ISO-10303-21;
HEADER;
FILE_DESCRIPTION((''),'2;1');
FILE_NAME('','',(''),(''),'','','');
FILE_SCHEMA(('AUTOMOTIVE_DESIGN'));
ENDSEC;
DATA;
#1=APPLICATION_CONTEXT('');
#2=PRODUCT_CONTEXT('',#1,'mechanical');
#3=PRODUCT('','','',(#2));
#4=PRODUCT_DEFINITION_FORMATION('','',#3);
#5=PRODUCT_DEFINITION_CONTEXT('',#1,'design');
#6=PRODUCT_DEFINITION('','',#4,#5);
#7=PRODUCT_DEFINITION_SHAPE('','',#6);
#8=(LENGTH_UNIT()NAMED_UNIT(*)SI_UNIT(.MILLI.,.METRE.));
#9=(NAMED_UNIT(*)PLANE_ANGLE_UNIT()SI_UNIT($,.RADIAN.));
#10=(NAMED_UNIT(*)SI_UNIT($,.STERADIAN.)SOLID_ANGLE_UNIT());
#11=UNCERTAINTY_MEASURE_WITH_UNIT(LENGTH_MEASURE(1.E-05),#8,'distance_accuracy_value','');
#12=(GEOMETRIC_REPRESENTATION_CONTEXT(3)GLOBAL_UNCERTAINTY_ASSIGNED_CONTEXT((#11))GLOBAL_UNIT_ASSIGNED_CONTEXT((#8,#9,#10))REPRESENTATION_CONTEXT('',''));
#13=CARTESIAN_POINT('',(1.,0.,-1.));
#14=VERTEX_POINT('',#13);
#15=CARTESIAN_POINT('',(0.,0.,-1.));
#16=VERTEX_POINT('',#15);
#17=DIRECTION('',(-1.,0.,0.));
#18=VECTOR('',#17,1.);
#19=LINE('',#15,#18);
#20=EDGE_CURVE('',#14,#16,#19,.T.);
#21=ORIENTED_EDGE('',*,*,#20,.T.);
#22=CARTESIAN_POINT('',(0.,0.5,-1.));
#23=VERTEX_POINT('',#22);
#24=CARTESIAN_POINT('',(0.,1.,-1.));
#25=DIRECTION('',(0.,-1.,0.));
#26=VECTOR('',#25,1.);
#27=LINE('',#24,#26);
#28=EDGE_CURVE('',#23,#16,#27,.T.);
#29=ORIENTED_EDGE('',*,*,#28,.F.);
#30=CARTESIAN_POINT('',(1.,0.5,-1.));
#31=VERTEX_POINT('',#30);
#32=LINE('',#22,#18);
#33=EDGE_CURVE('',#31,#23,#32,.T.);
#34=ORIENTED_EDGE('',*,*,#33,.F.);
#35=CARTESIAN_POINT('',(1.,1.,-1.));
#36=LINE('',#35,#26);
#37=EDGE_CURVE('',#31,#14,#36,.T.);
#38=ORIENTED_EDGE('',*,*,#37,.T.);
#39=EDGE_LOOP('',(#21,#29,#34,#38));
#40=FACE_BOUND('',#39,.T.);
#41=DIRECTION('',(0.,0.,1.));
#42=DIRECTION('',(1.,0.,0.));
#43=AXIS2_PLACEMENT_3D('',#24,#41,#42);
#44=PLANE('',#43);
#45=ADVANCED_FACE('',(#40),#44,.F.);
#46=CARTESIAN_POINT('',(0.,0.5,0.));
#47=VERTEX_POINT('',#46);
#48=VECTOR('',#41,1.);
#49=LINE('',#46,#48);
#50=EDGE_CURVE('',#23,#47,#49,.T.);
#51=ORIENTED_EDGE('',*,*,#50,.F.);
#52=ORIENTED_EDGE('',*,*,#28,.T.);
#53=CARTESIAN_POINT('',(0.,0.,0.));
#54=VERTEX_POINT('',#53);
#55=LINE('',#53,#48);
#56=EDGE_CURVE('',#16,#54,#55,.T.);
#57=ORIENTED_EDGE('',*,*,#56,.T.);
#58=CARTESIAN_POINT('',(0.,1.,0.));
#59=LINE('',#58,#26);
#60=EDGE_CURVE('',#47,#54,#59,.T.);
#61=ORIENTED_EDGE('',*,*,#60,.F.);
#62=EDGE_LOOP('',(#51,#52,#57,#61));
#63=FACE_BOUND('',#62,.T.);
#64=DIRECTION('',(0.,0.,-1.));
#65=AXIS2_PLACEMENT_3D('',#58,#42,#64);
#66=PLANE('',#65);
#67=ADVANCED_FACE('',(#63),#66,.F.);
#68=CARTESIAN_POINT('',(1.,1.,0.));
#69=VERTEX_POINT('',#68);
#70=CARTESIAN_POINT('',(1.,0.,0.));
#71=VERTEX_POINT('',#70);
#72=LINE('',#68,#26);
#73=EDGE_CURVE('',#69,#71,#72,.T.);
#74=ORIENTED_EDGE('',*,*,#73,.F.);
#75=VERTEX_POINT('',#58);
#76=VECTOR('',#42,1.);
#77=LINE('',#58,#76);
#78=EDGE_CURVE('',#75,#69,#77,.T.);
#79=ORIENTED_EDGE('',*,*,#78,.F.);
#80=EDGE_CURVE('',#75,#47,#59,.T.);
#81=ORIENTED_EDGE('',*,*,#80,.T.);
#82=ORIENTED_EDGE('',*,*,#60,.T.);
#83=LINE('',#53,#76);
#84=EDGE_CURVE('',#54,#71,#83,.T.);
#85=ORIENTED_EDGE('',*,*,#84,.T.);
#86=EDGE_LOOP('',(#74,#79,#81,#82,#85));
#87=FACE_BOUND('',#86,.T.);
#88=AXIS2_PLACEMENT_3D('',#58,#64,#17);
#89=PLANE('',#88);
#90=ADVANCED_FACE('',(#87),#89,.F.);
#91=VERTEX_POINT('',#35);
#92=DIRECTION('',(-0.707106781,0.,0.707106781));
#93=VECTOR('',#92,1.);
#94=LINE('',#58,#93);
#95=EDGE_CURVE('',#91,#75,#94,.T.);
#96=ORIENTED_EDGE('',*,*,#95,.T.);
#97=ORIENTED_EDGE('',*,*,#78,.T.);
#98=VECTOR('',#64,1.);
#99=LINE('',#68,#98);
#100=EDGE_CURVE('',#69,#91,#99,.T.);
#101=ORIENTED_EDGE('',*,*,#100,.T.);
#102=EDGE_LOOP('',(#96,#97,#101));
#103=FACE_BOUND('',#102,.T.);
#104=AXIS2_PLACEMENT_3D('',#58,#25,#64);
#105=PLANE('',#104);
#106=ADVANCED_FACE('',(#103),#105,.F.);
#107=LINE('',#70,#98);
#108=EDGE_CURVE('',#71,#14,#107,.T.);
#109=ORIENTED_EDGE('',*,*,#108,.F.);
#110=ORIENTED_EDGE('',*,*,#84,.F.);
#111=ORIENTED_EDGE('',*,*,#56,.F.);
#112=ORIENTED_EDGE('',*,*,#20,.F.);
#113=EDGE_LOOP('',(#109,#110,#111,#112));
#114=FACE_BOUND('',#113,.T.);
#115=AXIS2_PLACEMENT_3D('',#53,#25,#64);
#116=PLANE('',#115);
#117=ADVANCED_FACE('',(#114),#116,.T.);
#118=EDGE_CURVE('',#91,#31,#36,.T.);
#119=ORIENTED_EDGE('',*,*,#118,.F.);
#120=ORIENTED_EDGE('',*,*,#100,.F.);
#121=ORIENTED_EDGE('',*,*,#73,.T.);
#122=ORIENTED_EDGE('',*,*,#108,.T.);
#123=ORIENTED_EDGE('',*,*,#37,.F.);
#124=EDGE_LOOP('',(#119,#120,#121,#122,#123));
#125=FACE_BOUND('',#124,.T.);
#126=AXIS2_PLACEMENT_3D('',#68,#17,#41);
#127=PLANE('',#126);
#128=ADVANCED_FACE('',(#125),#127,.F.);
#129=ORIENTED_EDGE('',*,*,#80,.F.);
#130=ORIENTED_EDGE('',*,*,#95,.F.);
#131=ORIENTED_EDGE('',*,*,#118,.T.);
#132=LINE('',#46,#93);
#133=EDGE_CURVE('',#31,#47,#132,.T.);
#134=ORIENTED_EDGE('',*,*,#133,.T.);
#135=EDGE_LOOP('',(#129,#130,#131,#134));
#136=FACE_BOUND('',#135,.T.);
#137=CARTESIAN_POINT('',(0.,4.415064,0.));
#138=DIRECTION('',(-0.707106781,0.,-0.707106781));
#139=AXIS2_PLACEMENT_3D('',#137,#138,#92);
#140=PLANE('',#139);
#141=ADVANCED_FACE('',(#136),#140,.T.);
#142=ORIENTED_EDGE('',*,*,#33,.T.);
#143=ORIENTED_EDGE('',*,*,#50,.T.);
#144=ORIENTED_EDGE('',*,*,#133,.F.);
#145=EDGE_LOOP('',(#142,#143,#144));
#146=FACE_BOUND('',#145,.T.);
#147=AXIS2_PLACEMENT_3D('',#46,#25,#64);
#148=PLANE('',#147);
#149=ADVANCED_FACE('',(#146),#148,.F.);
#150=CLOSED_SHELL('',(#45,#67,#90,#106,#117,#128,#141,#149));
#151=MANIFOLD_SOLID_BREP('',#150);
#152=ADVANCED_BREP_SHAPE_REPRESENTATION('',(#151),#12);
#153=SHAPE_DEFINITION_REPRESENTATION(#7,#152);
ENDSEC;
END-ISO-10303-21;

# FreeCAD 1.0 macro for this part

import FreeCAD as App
import Part
import Sketcher
from FreeCAD import Vector
Q = App.Units.Quantity

doc = App.newDocument("Part")
body = doc.addObject("PartDesign::Body", "Body")

sketch1 = doc.addObject("Sketcher::SketchObject", "Sketch")
body.addObject(sketch1)
sketch1.AttachmentSupport = (doc.XZ_Plane, [""])
sketch1.MapMode = "FlatFace"
sketch1.addGeometry([
    Part.LineSegment(Vector(0, -1, 0), Vector(0, 0, 0)),
    Part.LineSegment(Vector(0, 0, 0), Vector(1, 0, 0)),
    Part.LineSegment(Vector(1, 0, 0), Vector(1, -1, 0)),
    Part.LineSegment(Vector(1, -1, 0), Vector(0, -1, 0)),
], False)
sketch1.addConstraint([
    Sketcher.Constraint("Coincident", 0, 2, 1, 1),
    Sketcher.Constraint("Coincident", 1, 2, 2, 1),
    Sketcher.Constraint("Coincident", 2, 2, 3, 1),
    Sketcher.Constraint("Coincident", 3, 2, 0, 1),
    Sketcher.Constraint("Vertical", 0),
    Sketcher.Constraint("Horizontal", 1),
    Sketcher.Constraint("Vertical", 2),
    Sketcher.Constraint("Horizontal", 3),
    Sketcher.Constraint("Coincident", 0, 2, -1, 1),
    Sketcher.Constraint("Equal", 3, 0),
    Sketcher.Constraint("DistanceX", 1, 1, 1, 2, Q("1 mm")),
])
pad1 = doc.addObject("PartDesign::Pad", "Pad")
body.addObject(pad1)
pad1.Profile = sketch1
pad1.Length = 1
pad1.Reversed = True

sketch2 = doc.addObject("Sketcher::SketchObject", "Sketch001")
body.addObject(sketch2)
sketch2.AttachmentSupport = (doc.XZ_Plane, [""])
sketch2.MapMode = "FlatFace"
sketch2.AttachmentOffset = App.Placement(Vector(0, 0, -1), App.Rotation())
sketch2.addGeometry([
    Part.LineSegment(Vector(-9, 9, 0), Vector(10, -10, 0)),
    Part.LineSegment(Vector(10, -10, 0), Vector(-8, -28, 0)),
    Part.LineSegment(Vector(-8, -28, 0), Vector(-27, -9, 0)),
    Part.LineSegment(Vector(-27, -9, 0), Vector(-9, 9, 0)),
], False)
sketch2.addConstraint([
    Sketcher.Constraint("Coincident", 0, 2, 1, 1),
    Sketcher.Constraint("Coincident", 1, 2, 2, 1),
    Sketcher.Constraint("Coincident", 2, 2, 3, 1),
    Sketcher.Constraint("Coincident", 3, 2, 0, 1),
    Sketcher.Constraint("Perpendicular", 0, 1),
    Sketcher.Constraint("Perpendicular", 1, 2),
    Sketcher.Constraint("Perpendicular", 2, 3),
    Sketcher.Constraint("Angle", 0, Q("-45 deg")),
    Sketcher.Constraint("DistanceY", 0, 2, 2, 2, Q("1 mm")),
    Sketcher.Constraint("DistanceX", 2, 2, 0, 2, Q("37.284271 mm")),
    Sketcher.Constraint("DistanceX", -1, 1, 0, 2, Q("10.071068 mm")),
    Sketcher.Constraint("DistanceY", 0, 2, -1, 1, Q("10.071068 mm")),
])
pocket1 = doc.addObject("PartDesign::Pocket", "Pocket")
body.addObject(pocket1)
pocket1.Profile = sketch2
pocket1.Type = "TwoLengths"
pocket1.Length = 2.732051
pocket1.Length2 = 0.5

doc.recompute()
